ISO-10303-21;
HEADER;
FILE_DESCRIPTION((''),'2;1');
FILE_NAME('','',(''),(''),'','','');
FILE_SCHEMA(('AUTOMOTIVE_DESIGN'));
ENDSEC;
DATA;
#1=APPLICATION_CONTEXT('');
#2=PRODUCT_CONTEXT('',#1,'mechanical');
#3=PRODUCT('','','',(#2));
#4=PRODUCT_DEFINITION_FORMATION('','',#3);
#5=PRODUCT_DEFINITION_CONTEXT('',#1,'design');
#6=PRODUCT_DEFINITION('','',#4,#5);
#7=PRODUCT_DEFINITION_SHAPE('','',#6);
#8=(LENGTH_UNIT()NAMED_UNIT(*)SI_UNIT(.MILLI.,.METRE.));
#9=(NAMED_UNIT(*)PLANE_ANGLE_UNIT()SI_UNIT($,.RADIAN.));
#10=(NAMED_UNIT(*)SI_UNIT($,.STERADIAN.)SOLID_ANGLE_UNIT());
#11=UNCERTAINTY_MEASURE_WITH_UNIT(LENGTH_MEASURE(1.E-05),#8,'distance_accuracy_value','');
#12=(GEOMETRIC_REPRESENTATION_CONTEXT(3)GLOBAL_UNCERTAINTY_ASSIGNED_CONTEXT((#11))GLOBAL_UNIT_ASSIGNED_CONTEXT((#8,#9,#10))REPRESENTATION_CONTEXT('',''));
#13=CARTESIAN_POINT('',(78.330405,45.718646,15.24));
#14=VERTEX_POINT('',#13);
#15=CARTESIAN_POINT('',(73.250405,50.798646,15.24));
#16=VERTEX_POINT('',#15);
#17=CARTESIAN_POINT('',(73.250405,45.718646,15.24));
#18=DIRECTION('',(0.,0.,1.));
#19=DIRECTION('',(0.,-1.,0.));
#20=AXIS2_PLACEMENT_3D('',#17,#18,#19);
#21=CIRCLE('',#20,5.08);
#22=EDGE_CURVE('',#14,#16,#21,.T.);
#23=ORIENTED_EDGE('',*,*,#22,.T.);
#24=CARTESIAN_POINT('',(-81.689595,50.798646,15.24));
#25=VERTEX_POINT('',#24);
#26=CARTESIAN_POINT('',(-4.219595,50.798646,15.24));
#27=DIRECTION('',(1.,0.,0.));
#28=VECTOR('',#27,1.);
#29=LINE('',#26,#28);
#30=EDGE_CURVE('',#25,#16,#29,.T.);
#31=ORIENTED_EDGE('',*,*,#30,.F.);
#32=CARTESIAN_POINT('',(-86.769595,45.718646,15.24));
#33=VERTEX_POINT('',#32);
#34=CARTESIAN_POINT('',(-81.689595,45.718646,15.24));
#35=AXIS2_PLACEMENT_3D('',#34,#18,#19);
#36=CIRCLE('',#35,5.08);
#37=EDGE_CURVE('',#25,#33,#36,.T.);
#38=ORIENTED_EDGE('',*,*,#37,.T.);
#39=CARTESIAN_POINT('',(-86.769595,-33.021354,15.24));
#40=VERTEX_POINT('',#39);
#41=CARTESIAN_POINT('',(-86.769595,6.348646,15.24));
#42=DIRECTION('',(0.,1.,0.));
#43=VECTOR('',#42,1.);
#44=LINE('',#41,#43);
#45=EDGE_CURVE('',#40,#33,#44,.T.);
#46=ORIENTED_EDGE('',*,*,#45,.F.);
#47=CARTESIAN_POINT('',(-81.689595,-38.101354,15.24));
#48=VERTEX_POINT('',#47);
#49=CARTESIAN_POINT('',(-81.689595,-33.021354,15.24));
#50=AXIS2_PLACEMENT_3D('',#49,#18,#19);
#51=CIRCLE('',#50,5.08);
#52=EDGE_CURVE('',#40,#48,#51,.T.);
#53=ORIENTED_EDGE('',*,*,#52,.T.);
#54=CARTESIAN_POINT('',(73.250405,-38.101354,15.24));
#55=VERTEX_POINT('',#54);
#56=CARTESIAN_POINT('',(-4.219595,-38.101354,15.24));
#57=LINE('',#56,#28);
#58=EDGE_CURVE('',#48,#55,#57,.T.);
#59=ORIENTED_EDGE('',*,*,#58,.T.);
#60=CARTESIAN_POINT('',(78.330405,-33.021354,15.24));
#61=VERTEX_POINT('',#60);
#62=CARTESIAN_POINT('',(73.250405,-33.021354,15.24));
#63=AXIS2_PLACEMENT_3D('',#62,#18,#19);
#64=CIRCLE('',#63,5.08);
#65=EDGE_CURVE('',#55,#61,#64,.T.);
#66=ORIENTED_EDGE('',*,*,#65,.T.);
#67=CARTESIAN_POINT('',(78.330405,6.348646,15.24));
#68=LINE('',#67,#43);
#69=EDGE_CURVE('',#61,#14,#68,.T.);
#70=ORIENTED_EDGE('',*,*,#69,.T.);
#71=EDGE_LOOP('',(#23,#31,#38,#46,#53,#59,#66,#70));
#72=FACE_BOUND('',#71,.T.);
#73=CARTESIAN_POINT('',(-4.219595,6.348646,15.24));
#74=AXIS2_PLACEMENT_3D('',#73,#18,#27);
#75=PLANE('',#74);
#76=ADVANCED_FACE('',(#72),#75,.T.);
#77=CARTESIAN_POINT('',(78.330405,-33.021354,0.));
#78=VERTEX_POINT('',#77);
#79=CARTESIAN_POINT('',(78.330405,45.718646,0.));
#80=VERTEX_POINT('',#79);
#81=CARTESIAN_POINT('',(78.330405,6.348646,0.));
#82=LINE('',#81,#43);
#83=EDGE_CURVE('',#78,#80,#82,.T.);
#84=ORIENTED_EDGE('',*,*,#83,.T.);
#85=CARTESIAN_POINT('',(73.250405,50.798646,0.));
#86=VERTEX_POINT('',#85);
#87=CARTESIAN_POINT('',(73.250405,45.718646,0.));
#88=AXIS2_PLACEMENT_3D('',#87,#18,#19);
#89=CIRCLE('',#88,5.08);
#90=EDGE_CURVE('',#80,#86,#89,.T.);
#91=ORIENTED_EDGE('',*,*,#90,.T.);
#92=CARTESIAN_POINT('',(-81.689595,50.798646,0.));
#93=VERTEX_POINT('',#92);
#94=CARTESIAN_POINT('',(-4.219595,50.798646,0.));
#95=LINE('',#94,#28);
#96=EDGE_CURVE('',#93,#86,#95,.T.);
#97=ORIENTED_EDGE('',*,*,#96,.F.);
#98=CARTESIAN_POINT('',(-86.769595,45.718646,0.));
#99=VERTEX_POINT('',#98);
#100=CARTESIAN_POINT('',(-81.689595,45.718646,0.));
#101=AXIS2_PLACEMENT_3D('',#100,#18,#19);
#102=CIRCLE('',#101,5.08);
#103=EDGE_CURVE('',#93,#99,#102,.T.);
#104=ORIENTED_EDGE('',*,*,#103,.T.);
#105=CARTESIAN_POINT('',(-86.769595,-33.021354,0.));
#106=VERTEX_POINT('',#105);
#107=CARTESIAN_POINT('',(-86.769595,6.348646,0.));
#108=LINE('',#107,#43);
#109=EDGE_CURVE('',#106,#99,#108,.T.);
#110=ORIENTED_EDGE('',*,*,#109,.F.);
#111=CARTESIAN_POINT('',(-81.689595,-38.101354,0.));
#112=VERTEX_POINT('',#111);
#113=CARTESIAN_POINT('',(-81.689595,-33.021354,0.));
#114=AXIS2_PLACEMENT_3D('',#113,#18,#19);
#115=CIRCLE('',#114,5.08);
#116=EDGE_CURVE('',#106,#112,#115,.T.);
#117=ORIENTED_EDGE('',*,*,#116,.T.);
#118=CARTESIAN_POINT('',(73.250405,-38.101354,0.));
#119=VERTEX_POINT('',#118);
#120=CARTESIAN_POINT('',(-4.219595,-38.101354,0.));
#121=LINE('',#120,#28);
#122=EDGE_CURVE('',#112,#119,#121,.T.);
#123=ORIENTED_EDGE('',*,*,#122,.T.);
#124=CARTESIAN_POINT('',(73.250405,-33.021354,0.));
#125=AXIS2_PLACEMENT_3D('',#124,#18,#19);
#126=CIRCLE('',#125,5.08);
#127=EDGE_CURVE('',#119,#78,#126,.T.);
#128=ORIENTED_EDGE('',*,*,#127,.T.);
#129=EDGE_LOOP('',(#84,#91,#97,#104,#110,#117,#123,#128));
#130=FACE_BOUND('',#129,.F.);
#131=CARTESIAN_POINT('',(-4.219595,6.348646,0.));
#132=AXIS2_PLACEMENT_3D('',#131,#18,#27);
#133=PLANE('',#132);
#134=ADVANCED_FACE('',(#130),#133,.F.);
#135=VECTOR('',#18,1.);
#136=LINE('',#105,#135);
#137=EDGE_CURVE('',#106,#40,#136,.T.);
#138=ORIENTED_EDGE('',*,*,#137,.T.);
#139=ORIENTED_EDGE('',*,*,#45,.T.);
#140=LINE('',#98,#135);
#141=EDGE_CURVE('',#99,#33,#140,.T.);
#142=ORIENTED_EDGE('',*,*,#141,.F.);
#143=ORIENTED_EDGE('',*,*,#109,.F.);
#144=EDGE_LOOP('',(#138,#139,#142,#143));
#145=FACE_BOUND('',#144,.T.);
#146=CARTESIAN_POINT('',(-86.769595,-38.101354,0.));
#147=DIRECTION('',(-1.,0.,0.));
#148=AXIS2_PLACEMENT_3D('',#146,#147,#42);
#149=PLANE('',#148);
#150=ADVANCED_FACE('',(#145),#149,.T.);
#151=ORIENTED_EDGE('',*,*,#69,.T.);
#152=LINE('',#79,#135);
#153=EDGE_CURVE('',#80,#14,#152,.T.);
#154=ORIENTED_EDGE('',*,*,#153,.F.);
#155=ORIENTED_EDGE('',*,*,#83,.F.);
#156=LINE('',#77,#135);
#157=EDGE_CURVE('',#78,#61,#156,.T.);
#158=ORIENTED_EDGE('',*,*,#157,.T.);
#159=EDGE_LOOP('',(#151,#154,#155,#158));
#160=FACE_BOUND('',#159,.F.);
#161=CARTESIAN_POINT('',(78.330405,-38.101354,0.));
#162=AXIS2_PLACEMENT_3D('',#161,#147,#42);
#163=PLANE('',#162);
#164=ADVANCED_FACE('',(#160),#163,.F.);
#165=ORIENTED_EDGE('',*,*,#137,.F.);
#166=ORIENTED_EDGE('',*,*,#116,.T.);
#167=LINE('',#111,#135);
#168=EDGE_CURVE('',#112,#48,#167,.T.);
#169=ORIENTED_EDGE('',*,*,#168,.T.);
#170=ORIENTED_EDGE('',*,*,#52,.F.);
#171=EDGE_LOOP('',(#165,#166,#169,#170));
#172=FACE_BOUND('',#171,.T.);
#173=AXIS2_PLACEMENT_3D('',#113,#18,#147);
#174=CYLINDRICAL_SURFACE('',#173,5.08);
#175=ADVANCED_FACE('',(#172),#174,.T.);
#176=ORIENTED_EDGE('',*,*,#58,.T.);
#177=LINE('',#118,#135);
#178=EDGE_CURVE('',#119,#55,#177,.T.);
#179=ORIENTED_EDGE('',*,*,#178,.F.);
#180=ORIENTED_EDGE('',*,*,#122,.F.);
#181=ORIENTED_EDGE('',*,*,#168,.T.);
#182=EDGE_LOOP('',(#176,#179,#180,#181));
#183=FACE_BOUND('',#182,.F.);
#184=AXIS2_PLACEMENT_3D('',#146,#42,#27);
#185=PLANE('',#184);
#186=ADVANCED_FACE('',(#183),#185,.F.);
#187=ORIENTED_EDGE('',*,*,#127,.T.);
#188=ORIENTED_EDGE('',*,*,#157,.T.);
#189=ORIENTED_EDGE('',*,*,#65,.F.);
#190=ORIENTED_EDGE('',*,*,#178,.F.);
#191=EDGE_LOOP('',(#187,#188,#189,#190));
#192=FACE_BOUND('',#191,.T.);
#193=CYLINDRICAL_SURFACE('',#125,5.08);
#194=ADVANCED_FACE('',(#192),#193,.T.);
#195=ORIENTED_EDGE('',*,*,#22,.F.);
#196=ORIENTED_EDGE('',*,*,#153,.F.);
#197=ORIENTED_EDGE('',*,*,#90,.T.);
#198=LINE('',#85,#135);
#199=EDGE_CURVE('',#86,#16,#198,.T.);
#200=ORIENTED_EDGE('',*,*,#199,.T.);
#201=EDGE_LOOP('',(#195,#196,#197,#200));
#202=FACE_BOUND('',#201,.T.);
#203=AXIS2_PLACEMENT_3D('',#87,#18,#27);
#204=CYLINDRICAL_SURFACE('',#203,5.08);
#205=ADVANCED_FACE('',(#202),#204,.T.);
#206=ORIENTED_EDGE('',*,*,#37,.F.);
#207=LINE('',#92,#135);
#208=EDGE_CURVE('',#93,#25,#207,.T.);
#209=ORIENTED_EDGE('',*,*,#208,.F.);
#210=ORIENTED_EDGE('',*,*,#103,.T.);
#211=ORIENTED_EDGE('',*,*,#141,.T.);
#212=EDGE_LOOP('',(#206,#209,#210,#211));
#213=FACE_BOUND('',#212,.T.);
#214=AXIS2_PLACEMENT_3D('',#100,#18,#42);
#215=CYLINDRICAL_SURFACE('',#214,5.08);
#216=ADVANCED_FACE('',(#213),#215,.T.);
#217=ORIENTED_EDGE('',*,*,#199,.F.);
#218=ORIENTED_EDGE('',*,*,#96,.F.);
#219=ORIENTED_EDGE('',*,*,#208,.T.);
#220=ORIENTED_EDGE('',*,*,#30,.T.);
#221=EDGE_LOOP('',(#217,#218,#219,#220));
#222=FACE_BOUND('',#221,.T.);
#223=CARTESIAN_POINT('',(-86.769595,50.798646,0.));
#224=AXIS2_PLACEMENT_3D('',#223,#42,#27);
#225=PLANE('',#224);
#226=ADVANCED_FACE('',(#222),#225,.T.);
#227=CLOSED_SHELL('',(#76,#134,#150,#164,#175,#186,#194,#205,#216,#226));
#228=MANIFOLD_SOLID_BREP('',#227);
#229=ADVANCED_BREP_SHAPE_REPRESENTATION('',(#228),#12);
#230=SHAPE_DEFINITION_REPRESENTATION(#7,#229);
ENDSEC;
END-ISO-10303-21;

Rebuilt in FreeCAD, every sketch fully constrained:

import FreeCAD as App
import Part
import Sketcher

V = App.Vector
Q = App.Units.Quantity


def edges_at(feature, points):
    """Names of the edges that pass closest to the given points."""
    edges = feature.Shape.Edges
    near = lambda p: min(range(len(edges)), key=lambda i: edges[i].distToShape(Part.Vertex(*p))[0])
    return sorted({f"Edge{near(p) + 1}" for p in points})


def add_polygon(sketch, points):
    """Adds a closed chain of lines whose ends are joined by coincident constraints."""
    first, n = sketch.GeometryCount, len(points)
    for a, b in zip(points, points[1:] + points[:1]):
        sketch.addGeometry(Part.LineSegment(App.Vector(*a, 0), App.Vector(*b, 0)), False)
    for i in range(n):
        sketch.addConstraint(Sketcher.Constraint("Coincident", first + i, 2, first + (i + 1) % n, 1))

doc = App.newDocument("Part")
params = doc.addObject("Spreadsheet::Sheet", "Params")
for row, (alias, value) in enumerate([
    ("sketch1_width", "6.5 in"),
    ("sketch1_height", "3.5 in"),
    ("pad1_length", "0.6 in"),
    ("fillet_radius", "0.2 in"),
    ("fillet2_radius", "0.2 in"),
    ("fillet3_radius", "0.2 in"),
    ("fillet4_radius", "0.2 in"),
], start=1):
    params.set(f"A{row}", alias)
    params.set(f"B{row}", "=" + value)
    params.setAlias(f"B{row}", alias)

body = doc.addObject("PartDesign::Body", "Body")

# Sketch on XY plane
sketch1 = doc.addObject("Sketcher::SketchObject", "Sketch")
body.addObject(sketch1)
sketch1.AttachmentSupport = (doc.XY_Plane, [""])
sketch1.MapMode = "FlatFace"
add_polygon(sketch1, [(-86.769595, 50.798646), (-86.769595, -38.101354), (78.330405, -38.101354), (78.330405, 50.798646)])  # lines 0-3
sketch1.addConstraint(Sketcher.Constraint("Vertical", 0))
sketch1.addConstraint(Sketcher.Constraint("Horizontal", 1))
sketch1.addConstraint(Sketcher.Constraint("Vertical", 2))
sketch1.addConstraint(Sketcher.Constraint("Horizontal", 3))
sketch1.addConstraint(Sketcher.Constraint("DistanceX", 1, 1, 1, 2, Q("6.5 in")))
sketch1.addConstraint(Sketcher.Constraint("DistanceY", 0, 2, 0, 1, Q("3.5 in")))
sketch1.addConstraint(Sketcher.Constraint("DistanceX", 0, 2, -1, 1, Q("86.769595 mm")))
sketch1.addConstraint(Sketcher.Constraint("DistanceY", 0, 2, -1, 1, Q("38.101354 mm")))
sketch1.setExpression("Constraints[8]", "Params.sketch1_width")
sketch1.setExpression("Constraints[9]", "Params.sketch1_height")
pad1 = doc.addObject("PartDesign::Pad", "Pad")
body.addObject(pad1)
pad1.Profile = sketch1
pad1.setExpression("Length", "Params.pad1_length")
doc.recompute()

fillet = doc.addObject("PartDesign::Fillet", "Fillet")
body.addObject(fillet)
fillet.Base = (pad1, edges_at(pad1, [(-86.77, -38.101, 7.62)]))
fillet.setExpression("Radius", "Params.fillet_radius")
doc.recompute()

fillet2 = doc.addObject("PartDesign::Fillet", "Fillet001")
body.addObject(fillet2)
fillet2.Base = (fillet, edges_at(fillet, [(78.33, -38.101, 7.62)]))
fillet2.setExpression("Radius", "Params.fillet2_radius")
doc.recompute()

fillet3 = doc.addObject("PartDesign::Fillet", "Fillet002")
body.addObject(fillet3)
fillet3.Base = (fillet2, edges_at(fillet2, [(78.33, 50.799, 7.62)]))
fillet3.setExpression("Radius", "Params.fillet3_radius")
doc.recompute()

fillet4 = doc.addObject("PartDesign::Fillet", "Fillet003")
body.addObject(fillet4)
fillet4.Base = (fillet3, edges_at(fillet3, [(-86.77, 50.799, 7.62)]))
fillet4.setExpression("Radius", "Params.fillet4_radius")

doc.recompute()
